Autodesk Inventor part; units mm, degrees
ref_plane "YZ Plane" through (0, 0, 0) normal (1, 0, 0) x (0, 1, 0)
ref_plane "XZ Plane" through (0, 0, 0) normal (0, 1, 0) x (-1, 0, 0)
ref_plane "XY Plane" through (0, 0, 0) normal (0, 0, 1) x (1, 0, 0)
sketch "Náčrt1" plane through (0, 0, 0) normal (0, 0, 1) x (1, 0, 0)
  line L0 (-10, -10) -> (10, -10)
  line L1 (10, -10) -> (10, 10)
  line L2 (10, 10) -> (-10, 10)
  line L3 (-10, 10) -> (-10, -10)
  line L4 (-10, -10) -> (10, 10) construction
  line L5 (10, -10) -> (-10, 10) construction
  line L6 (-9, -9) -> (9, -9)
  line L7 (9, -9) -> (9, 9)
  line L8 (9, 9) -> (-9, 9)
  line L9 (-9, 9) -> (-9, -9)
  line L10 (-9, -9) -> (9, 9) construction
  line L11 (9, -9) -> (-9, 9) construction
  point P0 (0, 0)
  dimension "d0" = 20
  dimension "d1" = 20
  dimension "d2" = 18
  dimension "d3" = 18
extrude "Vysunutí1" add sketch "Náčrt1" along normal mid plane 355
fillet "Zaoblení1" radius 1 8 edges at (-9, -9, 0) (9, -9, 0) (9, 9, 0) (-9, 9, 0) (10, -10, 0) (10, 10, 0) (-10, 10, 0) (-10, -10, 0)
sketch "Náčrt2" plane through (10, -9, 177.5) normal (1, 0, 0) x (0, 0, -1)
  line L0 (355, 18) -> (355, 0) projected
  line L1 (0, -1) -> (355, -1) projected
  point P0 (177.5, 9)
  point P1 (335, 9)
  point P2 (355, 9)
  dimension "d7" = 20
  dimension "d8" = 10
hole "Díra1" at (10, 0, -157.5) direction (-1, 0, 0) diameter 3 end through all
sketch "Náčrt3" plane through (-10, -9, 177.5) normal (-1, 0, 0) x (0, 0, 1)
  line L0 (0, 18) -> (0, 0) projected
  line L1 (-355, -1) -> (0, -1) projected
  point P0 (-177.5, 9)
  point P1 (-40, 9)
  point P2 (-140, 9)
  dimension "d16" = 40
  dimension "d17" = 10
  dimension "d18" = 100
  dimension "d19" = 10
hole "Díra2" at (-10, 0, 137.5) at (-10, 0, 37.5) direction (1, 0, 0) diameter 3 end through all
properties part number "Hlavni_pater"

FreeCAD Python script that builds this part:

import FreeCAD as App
import Part
import Sketcher
from FreeCAD import Vector
Q = App.Units.Quantity


def edges_at(feature, points):
    """Names of the edges that pass closest to the given points."""
    edges = feature.Shape.Edges
    near = lambda p: min(range(len(edges)), key=lambda i: edges[i].distToShape(Part.Vertex(*p))[0])
    return sorted({f"Edge{near(p) + 1}" for p in points})

doc = App.newDocument("Part")
params = doc.addObject("Spreadsheet::Sheet", "Params")
for row, (alias, value) in enumerate([
    ("sketch1_width", "20 mm"),
    ("sketch1_width2", "18 mm"),
    ("pad1_length", "355 mm"),
    ("fillet_radius", "1 mm"),
    ("sketch2_diameter", "3 mm"),
    ("hole_diameter", "3 mm"),
    ("sketch3_diameter", "3 mm"),
    ("hole2_diameter", "3 mm"),
], start=1):
    params.set(f"A{row}", alias)
    params.set(f"B{row}", "=" + value)
    params.setAlias(f"B{row}", alias)

body = doc.addObject("PartDesign::Body", "Body")

# Sketch on XY plane
sketch1 = body.newObject("Sketcher::SketchObject", "Sketch")
sketch1.AttachmentSupport = (doc.getObject("XY_Plane"), [""])
sketch1.MapMode = "FlatFace"
sketch1.addGeometry([
    Part.LineSegment(Vector(-10, 10, 0), Vector(-10, -10, 0)),  # 0
    Part.LineSegment(Vector(-10, -10, 0), Vector(10, -10, 0)),  # 1
    Part.LineSegment(Vector(10, -10, 0), Vector(10, 10, 0)),  # 2
    Part.LineSegment(Vector(10, 10, 0), Vector(-10, 10, 0)),  # 3
    Part.LineSegment(Vector(9, -9, 0), Vector(-9, -9, 0)),  # 4
    Part.LineSegment(Vector(-9, -9, 0), Vector(-9, 9, 0)),  # 5
    Part.LineSegment(Vector(-9, 9, 0), Vector(9, 9, 0)),  # 6
    Part.LineSegment(Vector(9, 9, 0), Vector(9, -9, 0)),  # 7
], False)
sketch1.addConstraint([
    Sketcher.Constraint("Coincident", 0, 2, 1, 1),
    Sketcher.Constraint("Coincident", 1, 2, 2, 1),
    Sketcher.Constraint("Coincident", 2, 2, 3, 1),
    Sketcher.Constraint("Coincident", 3, 2, 0, 1),
    Sketcher.Constraint("Coincident", 4, 2, 5, 1),
    Sketcher.Constraint("Coincident", 5, 2, 6, 1),
    Sketcher.Constraint("Coincident", 6, 2, 7, 1),
    Sketcher.Constraint("Coincident", 7, 2, 4, 1),
    Sketcher.Constraint("Vertical", 0),
    Sketcher.Constraint("Horizontal", 1),
    Sketcher.Constraint("Vertical", 2),
    Sketcher.Constraint("Horizontal", 3),
    Sketcher.Constraint("Horizontal", 4),
    Sketcher.Constraint("Vertical", 5),
    Sketcher.Constraint("Horizontal", 6),
    Sketcher.Constraint("Vertical", 7),
    Sketcher.Constraint("Symmetric", 0, 2, 2, 2, -1, 1),
    Sketcher.Constraint("Symmetric", 4, 2, 6, 2, -1, 1),
    Sketcher.Constraint("Equal", 3, 0),
    Sketcher.Constraint("Equal", 6, 5),
    Sketcher.Constraint("DistanceX", 1, 1, 1, 2, Q("20 mm")),
    Sketcher.Constraint("DistanceX", 4, 2, 4, 1, Q("18 mm")),
])
sketch1.setExpression("Constraints[20]", "Params.sketch1_width")
sketch1.setExpression("Constraints[21]", "Params.sketch1_width2")
pad1 = body.newObject("PartDesign::Pad", "Pad")
pad1.Profile = sketch1
pad1.setExpression("Length", "Params.pad1_length")
pad1.Midplane = True
doc.recompute()

fillet = body.newObject("PartDesign::Fillet", "Fillet")
fillet.Base = (pad1, edges_at(pad1, [
    (-9, -9, 0),
    (9, -9, 0),
    (9, 9, 0),
    (-9, 9, 0),
    (10, -10, 0),
    (10, 10, 0),
    (-10, 10, 0),
    (-10, -10, 0),
]))
fillet.setExpression("Radius", "Params.fillet_radius")

# Sketch on YZ plane
sketch2 = body.newObject("Sketcher::SketchObject", "Sketch001")
sketch2.AttachmentSupport = (doc.getObject("YZ_Plane"), [""])
sketch2.MapMode = "FlatFace"
sketch2.AttachmentOffset = App.Placement(Vector(0, 0, 10), App.Rotation())
sketch2.addGeometry(Part.Circle(Vector(0, -157.5, 0), Vector(0, 0, 1), 1.5), False)
sketch2.addConstraint([
    Sketcher.Constraint("PointOnObject", 0, 3, -2),
    Sketcher.Constraint("Diameter", 0, Q("3 mm")),
    Sketcher.Constraint("DistanceY", 0, 3, -1, 1, Q("157.5 mm")),
])
sketch2.setExpression("Constraints[1]", "Params.sketch2_diameter")
doc.recompute()
hole = body.newObject("PartDesign::Hole", "Hole")
hole.Profile = sketch2
hole.ThreadType = "None"
hole.setExpression("Diameter", "Params.hole_diameter")
hole.DepthType = "ThroughAll"

# Sketch on YZ plane
sketch3 = body.newObject("Sketcher::SketchObject", "Sketch002")
sketch3.AttachmentSupport = (doc.getObject("YZ_Plane"), [""])
sketch3.MapMode = "FlatFace"
sketch3.AttachmentOffset = App.Placement(Vector(0, 0, -10), App.Rotation())
sketch3.addGeometry([
    Part.Circle(Vector(0, 137.5, 0), Vector(0, 0, 1), 1.5),
    Part.Circle(Vector(0, 37.5, 0), Vector(0, 0, 1), 1.5),
], False)
sketch3.addConstraint([
    Sketcher.Constraint("Equal", 0, 1),
    Sketcher.Constraint("PointOnObject", 0, 3, -2),
    Sketcher.Constraint("PointOnObject", 1, 3, -2),
    Sketcher.Constraint("Diameter", 0, Q("3 mm")),
    Sketcher.Constraint("DistanceY", 1, 3, 0, 3, Q("100 mm")),
    Sketcher.Constraint("DistanceY", -1, 1, 0, 3, Q("137.5 mm")),
])
sketch3.setExpression("Constraints[3]", "Params.sketch3_diameter")
doc.recompute()
hole2 = body.newObject("PartDesign::Hole", "Hole001")
hole2.Profile = sketch3
hole2.ThreadType = "None"
hole2.setExpression("Diameter", "Params.hole2_diameter")
hole2.DepthType = "ThroughAll"
hole2.Reversed = True

doc.recompute()
